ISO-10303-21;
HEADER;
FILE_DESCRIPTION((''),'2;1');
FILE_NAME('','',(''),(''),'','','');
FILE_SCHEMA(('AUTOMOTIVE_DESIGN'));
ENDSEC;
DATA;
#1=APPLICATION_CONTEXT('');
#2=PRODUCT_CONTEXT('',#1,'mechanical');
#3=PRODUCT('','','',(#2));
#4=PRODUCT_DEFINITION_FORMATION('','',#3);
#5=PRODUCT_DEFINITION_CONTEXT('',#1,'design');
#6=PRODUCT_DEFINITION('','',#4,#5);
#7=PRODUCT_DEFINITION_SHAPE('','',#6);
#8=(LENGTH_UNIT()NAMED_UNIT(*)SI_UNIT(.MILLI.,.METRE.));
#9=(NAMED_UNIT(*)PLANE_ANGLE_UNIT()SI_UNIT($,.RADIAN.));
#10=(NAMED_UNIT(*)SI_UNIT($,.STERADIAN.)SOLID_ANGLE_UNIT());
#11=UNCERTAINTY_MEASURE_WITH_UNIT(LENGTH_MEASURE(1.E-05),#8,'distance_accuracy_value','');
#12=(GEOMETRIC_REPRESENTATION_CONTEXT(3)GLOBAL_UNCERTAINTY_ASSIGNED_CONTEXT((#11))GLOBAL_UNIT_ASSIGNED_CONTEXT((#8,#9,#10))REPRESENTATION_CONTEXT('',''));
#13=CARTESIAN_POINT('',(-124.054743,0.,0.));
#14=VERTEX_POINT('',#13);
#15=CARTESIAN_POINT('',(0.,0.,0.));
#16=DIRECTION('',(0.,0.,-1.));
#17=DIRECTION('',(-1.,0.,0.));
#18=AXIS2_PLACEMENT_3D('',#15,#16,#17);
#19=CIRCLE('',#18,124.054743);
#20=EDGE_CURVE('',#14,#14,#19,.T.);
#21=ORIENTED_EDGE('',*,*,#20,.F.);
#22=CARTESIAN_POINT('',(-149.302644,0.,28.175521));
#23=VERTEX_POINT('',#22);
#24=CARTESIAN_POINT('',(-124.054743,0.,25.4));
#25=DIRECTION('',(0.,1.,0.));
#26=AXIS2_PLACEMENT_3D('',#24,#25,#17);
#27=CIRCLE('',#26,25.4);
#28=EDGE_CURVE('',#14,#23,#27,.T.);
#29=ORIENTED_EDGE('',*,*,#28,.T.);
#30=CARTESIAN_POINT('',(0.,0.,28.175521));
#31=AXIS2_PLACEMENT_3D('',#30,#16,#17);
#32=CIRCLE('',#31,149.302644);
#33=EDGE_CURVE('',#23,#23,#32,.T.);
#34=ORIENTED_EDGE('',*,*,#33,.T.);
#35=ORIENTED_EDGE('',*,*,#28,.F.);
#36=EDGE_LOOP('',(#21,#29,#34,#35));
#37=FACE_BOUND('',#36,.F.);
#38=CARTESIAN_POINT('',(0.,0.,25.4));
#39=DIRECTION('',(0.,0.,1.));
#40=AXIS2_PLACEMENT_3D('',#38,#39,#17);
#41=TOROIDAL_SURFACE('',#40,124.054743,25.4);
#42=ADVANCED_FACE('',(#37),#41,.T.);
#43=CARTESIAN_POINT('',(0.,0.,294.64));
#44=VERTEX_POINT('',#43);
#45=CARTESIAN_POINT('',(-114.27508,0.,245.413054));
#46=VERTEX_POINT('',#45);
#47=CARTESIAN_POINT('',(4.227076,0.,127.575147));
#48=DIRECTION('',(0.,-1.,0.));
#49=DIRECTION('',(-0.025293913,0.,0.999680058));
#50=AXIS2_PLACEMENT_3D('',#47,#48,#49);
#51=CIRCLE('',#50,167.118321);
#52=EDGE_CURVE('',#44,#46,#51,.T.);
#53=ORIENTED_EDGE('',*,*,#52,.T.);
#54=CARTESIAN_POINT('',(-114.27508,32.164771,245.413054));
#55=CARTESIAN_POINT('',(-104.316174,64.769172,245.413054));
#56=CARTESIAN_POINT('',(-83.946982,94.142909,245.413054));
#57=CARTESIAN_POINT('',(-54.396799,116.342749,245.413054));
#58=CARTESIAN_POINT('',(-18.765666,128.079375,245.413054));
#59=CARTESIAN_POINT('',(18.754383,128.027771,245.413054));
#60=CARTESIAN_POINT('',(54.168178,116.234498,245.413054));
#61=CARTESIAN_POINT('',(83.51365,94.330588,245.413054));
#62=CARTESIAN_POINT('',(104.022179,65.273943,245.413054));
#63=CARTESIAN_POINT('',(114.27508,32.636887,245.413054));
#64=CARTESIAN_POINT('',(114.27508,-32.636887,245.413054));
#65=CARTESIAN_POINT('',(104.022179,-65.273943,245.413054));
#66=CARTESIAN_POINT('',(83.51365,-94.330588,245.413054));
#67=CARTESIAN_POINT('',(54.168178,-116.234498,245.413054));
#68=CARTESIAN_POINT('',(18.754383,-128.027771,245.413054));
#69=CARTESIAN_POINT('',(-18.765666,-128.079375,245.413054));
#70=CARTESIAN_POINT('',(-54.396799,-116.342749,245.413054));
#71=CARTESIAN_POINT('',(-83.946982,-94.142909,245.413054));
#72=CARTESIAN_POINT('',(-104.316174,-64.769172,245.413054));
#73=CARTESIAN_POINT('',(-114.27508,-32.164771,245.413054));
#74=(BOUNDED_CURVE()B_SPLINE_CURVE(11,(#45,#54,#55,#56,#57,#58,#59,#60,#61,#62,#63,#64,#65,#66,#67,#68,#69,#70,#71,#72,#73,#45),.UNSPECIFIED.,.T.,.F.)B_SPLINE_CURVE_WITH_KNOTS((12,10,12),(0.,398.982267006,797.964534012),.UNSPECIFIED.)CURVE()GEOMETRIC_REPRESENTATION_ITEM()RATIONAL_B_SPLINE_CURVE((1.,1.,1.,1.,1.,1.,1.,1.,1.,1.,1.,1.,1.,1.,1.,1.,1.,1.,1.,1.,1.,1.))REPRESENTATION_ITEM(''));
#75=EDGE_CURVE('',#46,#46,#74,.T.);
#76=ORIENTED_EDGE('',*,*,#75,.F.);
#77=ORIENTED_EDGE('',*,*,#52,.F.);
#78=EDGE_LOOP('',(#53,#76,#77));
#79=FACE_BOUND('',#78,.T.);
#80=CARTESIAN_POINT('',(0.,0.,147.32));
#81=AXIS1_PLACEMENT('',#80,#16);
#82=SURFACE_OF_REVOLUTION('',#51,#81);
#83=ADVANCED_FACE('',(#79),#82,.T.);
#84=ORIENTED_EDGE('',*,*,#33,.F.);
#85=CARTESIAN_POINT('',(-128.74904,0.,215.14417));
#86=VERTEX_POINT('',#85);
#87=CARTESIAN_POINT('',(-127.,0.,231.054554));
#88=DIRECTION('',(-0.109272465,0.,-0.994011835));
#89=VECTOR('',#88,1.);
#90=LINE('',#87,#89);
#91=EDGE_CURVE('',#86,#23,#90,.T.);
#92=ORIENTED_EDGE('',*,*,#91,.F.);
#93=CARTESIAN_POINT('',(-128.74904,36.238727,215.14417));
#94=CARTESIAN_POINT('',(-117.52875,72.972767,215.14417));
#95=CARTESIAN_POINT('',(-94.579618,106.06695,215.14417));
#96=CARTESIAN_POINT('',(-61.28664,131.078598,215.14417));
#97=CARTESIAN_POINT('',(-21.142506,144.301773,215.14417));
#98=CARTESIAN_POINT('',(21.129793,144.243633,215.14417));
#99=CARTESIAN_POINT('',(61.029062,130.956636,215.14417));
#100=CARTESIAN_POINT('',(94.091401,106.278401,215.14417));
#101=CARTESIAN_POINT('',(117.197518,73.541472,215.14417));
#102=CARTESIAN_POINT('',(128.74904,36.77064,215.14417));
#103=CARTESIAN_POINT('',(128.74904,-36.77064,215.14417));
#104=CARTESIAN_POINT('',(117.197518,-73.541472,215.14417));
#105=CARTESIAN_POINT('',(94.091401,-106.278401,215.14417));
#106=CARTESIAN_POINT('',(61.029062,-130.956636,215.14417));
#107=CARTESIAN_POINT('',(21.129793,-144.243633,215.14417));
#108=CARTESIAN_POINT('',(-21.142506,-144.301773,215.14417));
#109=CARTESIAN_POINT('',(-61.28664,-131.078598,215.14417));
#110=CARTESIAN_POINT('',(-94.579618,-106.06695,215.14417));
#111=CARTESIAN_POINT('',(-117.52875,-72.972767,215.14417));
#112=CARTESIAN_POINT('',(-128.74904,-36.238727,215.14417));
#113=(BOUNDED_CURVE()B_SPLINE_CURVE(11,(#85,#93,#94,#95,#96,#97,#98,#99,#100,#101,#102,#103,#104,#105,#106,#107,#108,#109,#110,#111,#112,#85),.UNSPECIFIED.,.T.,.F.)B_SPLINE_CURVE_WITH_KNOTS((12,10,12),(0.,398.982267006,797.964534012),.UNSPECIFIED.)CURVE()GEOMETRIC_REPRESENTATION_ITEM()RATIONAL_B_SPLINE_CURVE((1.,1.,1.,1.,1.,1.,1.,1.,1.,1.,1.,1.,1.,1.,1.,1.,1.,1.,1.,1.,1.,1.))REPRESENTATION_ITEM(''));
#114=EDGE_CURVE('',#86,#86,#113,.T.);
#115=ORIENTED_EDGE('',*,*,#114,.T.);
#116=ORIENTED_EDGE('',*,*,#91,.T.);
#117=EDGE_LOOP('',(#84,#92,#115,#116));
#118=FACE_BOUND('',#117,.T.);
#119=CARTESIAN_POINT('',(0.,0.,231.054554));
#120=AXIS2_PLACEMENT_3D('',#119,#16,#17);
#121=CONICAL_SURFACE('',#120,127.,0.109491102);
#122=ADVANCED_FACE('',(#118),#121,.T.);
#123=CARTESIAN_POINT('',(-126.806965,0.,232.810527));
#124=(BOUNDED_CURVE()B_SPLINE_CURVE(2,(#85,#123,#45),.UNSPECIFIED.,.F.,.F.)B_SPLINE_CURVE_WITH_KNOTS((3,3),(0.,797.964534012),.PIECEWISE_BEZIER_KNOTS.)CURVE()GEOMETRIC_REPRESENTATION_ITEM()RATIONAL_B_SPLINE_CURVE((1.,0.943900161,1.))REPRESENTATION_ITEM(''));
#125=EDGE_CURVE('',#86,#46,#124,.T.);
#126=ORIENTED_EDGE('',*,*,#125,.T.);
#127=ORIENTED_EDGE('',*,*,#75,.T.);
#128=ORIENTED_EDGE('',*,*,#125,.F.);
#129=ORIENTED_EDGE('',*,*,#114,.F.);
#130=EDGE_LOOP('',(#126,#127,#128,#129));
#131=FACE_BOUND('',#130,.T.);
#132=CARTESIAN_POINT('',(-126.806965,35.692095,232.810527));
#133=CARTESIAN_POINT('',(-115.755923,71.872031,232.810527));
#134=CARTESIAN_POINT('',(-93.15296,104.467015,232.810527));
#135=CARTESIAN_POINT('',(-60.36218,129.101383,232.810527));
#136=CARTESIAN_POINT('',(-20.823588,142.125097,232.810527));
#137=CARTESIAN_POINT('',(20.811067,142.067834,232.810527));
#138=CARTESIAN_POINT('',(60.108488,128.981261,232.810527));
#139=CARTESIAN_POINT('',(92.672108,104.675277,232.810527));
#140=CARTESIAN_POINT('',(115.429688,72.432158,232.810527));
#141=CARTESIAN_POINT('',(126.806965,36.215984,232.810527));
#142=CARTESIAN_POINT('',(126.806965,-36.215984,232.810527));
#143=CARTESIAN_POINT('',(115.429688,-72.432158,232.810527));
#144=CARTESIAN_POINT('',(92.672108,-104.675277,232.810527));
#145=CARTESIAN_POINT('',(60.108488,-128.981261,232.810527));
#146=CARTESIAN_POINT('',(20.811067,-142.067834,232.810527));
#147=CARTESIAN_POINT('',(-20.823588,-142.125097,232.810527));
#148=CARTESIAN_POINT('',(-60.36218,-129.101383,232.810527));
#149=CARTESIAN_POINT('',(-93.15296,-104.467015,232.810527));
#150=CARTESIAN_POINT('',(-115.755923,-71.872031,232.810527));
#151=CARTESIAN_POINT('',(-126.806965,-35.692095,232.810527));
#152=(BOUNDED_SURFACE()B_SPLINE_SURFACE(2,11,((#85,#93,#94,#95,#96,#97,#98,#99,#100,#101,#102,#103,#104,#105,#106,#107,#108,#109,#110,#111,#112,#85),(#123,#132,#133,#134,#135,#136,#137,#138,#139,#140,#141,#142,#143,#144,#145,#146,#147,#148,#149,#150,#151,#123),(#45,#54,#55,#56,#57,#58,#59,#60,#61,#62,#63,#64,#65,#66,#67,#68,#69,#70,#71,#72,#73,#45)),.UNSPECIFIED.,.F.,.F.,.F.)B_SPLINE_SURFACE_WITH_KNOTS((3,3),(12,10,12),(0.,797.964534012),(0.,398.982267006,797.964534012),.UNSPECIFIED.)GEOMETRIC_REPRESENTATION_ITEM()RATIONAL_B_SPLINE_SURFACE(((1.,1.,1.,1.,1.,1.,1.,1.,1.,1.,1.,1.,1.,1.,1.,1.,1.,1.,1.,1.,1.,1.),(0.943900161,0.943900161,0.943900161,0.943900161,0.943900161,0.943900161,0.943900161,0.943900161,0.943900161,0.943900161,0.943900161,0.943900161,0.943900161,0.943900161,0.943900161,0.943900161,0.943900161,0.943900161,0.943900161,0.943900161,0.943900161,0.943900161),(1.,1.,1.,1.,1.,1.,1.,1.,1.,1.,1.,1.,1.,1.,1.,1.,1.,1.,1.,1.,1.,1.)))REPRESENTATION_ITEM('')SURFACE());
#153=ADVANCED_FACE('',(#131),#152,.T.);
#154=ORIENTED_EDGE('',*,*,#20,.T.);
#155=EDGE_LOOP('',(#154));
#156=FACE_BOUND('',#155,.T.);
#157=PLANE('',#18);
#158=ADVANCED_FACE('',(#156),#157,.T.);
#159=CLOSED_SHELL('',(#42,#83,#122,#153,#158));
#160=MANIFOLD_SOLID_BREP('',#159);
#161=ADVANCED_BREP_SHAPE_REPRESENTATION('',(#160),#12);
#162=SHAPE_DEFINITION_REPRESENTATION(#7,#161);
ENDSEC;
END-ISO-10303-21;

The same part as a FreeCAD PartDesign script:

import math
import FreeCAD as App
import Part
import Sketcher
Q = App.Units.Quantity


def edges_at(feature, points):
    """Names of the edges that pass closest to the given points."""
    edges = feature.Shape.Edges
    near = lambda p: min(range(len(edges)), key=lambda i: edges[i].distToShape(Part.Vertex(*p))[0])
    return sorted({f"Edge{near(p) + 1}" for p in points})

doc = App.newDocument("Part")
body = doc.addObject("PartDesign::Body", "Body")

sketch1 = doc.addObject("Sketcher::SketchObject", "Sketch")
body.addObject(sketch1)
sketch1.AttachmentSupport = (doc.XZ_Plane, [""])
sketch1.MapMode = "FlatFace"
sketch1.addGeometry([
    Part.LineSegment(App.Vector(-152.4, 0, 0), App.Vector(0, 0, 0)),
    Part.LineSegment(App.Vector(0, 0, 0), App.Vector(0, 294.64, 0)),
    Part.ArcOfCircle(Part.Circle(App.Vector(4.227076, 127.575147, 0), App.Vector(0, 0, 1), 167.118321), math.radians(91.449389), math.radians(141.742375)),
    Part.LineSegment(App.Vector(-127, 231.054554, 0), App.Vector(-152.4, 0, 0)),
], False)
sketch1.addConstraint([
    Sketcher.Constraint("Coincident", 0, 2, 1, 1),
    Sketcher.Constraint("Coincident", 1, 2, 2, 1),
    Sketcher.Constraint("Coincident", 2, 2, 3, 1),
    Sketcher.Constraint("Coincident", 3, 2, 0, 1),
    Sketcher.Constraint("Horizontal", 0),
    Sketcher.Constraint("Vertical", 1),
    Sketcher.Constraint("Coincident", 0, 2, -1, 1),
    Sketcher.Constraint("DistanceX", 0, 1, 0, 2, Q("6 in")),
    Sketcher.Constraint("DistanceY", 1, 1, 1, 2, Q("11.6 in")),
    Sketcher.Constraint("DistanceX", 2, 2, -1, 1, Q("5 in")),
    Sketcher.Constraint("Radius", 2, 167.118321),
    Sketcher.Constraint("Distance", 3, 232.446482),
])
revolution = doc.addObject("PartDesign::Revolution", "Revolution")
body.addObject(revolution)
revolution.Profile = sketch1
revolution.ReferenceAxis = (sketch1, ["V_Axis"])
revolution.Angle = 360
doc.recompute()

fillet = doc.addObject("PartDesign::Fillet", "Fillet")
body.addObject(fillet)
fillet.Base = (revolution, edges_at(revolution, [(152.4, 0, 0)]))
fillet.Radius = Q("1 in")
doc.recompute()

fillet2 = doc.addObject("PartDesign::Fillet", "Fillet001")
body.addObject(fillet2)
fillet2.Base = (fillet, edges_at(fillet, [(127, 0, 231.055)]))
fillet2.Radius = Q("2 in")

doc.recompute()
